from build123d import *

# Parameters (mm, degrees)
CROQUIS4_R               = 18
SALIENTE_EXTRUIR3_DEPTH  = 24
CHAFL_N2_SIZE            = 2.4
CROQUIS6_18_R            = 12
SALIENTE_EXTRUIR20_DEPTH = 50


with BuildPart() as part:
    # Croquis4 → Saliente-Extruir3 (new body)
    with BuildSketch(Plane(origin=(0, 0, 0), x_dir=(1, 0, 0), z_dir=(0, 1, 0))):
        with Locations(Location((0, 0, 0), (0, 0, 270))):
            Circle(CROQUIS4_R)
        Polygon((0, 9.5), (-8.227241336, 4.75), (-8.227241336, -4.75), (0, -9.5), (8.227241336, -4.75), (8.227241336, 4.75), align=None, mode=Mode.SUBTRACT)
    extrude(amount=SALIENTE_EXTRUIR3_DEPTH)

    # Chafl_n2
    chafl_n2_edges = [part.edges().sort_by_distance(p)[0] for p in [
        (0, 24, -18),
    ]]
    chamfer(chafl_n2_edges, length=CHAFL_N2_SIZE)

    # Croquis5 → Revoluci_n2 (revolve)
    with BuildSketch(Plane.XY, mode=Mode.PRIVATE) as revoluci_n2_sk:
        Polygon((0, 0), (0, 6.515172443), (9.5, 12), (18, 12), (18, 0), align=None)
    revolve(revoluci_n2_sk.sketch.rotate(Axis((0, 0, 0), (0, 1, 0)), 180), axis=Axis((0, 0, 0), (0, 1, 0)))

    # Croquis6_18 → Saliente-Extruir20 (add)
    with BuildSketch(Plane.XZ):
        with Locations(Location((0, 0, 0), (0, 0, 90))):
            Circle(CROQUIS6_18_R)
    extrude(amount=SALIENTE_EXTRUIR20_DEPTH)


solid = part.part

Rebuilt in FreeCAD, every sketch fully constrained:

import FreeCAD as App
import Part
import Sketcher
Q = App.Units.Quantity


def edges_at(feature, points):
    """Names of the edges that pass closest to the given points."""
    edges = feature.Shape.Edges
    near = lambda p: min(range(len(edges)), key=lambda i: edges[i].distToShape(Part.Vertex(*p))[0])
    return sorted({f"Edge{near(p) + 1}" for p in points})


def add_polygon(sketch, points):
    """Adds a closed chain of lines whose ends are joined by coincident constraints."""
    first, n = sketch.GeometryCount, len(points)
    for a, b in zip(points, points[1:] + points[:1]):
        sketch.addGeometry(Part.LineSegment(App.Vector(*a, 0), App.Vector(*b, 0)), False)
    for i in range(n):
        sketch.addConstraint(Sketcher.Constraint("Coincident", first + i, 2, first + (i + 1) % n, 1))

doc = App.newDocument("Part")
params = doc.addObject("Spreadsheet::Sheet", "Params")
for row, (alias, value) in enumerate([
    ("sketch1_diameter", "36 mm"),
    ("sketch1_height", "9.5 mm"),
    ("pad1_length", "24 mm"),
    ("chamfer_size", "2.4 mm"),
    ("sketch2_width", "18 mm"),
    ("sketch2_height", "12 mm"),
    ("sketch2_width2", "8.5 mm"),
    ("revolution_angle", "360 deg"),
    ("sketch3_diameter", "24 mm"),
    ("pad2_length", "50 mm"),
], start=1):
    params.set(f"A{row}", alias)
    params.set(f"B{row}", "=" + value)
    params.setAlias(f"B{row}", alias)

body = doc.addObject("PartDesign::Body", "Body")

sketch1 = doc.addObject("Sketcher::SketchObject", "Sketch")
body.addObject(sketch1)
sketch1.AttachmentSupport = (doc.XZ_Plane, [""])
sketch1.MapMode = "FlatFace"
sketch1.addGeometry(Part.Circle(App.Vector(0, 0, 0), App.Vector(0, 0, 1), 18), False)
add_polygon(sketch1, [(-8, -5), (0, -10), (8, -5), (8, 5), (0, 10), (-8, 5)])
sketch1.addConstraint(Sketcher.Constraint("Vertical", 3))
sketch1.addConstraint(Sketcher.Constraint("Vertical", 6))
sketch1.addConstraint(Sketcher.Constraint("Coincident", 0, 3, -1, 1))
sketch1.addConstraint(Sketcher.Constraint("Symmetric", 1, 2, 4, 2, -1, 1))
sketch1.addConstraint(Sketcher.Constraint("Symmetric", 2, 2, 5, 2, -1, 1))
sketch1.addConstraint(Sketcher.Constraint("PointOnObject", 1, 2, -2))
sketch1.addConstraint(Sketcher.Constraint("Parallel", 1, 4))
sketch1.addConstraint(Sketcher.Constraint("Horizontal", 3, 2, 5, 2))
sketch1.addConstraint(Sketcher.Constraint("Diameter", 0, 36.0))
sketch1.addConstraint(Sketcher.Constraint("Angle", 1, Q("-30 deg")))
sketch1.addConstraint(Sketcher.Constraint("DistanceY", 3, 1, 3, 2, 9.5))
sketch1.addConstraint(Sketcher.Constraint("DistanceY", 1, 2, 4, 2, 19.0))
sketch1.setExpression("Constraints[14]", "Params.sketch1_diameter")
sketch1.setExpression("Constraints[16]", "Params.sketch1_height")
pad1 = doc.addObject("PartDesign::Pad", "Pad")
body.addObject(pad1)
pad1.Profile = sketch1
pad1.setExpression("Length", "Params.pad1_length")
pad1.Reversed = True
doc.recompute()

chamfer = doc.addObject("PartDesign::Chamfer", "Chamfer")
body.addObject(chamfer)
chamfer.Base = (pad1, edges_at(pad1, [(0, 24, -18)]))
chamfer.setExpression("Size", "Params.chamfer_size")

sketch2 = doc.addObject("Sketcher::SketchObject", "Sketch001")
body.addObject(sketch2)
sketch2.AttachmentSupport = (doc.XY_Plane, [""])
sketch2.MapMode = "FlatFace"
add_polygon(sketch2, [(0, 7), (0, 0), (18, 0), (18, 12), (10, 12)])
sketch2.addConstraint(Sketcher.Constraint("Vertical", 0))
sketch2.addConstraint(Sketcher.Constraint("Horizontal", 1))
sketch2.addConstraint(Sketcher.Constraint("Vertical", 2))
sketch2.addConstraint(Sketcher.Constraint("Horizontal", 3))
sketch2.addConstraint(Sketcher.Constraint("Coincident", 0, 2, -1, 1))
sketch2.addConstraint(Sketcher.Constraint("DistanceX", 1, 1, 1, 2, 18.0))
sketch2.addConstraint(Sketcher.Constraint("DistanceY", 2, 1, 2, 2, 12.0))
sketch2.addConstraint(Sketcher.Constraint("Angle", 4, Q("-150 deg")))
sketch2.addConstraint(Sketcher.Constraint("DistanceX", 3, 2, 3, 1, 8.5))
sketch2.setExpression("Constraints[10]", "Params.sketch2_width")
sketch2.setExpression("Constraints[11]", "Params.sketch2_height")
sketch2.setExpression("Constraints[13]", "Params.sketch2_width2")
revolution = doc.addObject("PartDesign::Revolution", "Revolution")
body.addObject(revolution)
revolution.Profile = sketch2
revolution.ReferenceAxis = (sketch2, ["V_Axis"])
revolution.setExpression("Angle", "Params.revolution_angle")

sketch3 = doc.addObject("Sketcher::SketchObject", "Sketch002")
body.addObject(sketch3)
sketch3.AttachmentSupport = (doc.XZ_Plane, [""])
sketch3.MapMode = "FlatFace"
sketch3.addGeometry(Part.Circle(App.Vector(0, 0, 0), App.Vector(0, 0, 1), 12), False)
sketch3.addConstraint(Sketcher.Constraint("Coincident", 0, 3, -1, 1))
sketch3.addConstraint(Sketcher.Constraint("Diameter", 0, 24.0))
sketch3.setExpression("Constraints[1]", "Params.sketch3_diameter")
pad2 = doc.addObject("PartDesign::Pad", "Pad001")
body.addObject(pad2)
pad2.Profile = sketch3
pad2.setExpression("Length", "Params.pad2_length")

doc.recompute()
